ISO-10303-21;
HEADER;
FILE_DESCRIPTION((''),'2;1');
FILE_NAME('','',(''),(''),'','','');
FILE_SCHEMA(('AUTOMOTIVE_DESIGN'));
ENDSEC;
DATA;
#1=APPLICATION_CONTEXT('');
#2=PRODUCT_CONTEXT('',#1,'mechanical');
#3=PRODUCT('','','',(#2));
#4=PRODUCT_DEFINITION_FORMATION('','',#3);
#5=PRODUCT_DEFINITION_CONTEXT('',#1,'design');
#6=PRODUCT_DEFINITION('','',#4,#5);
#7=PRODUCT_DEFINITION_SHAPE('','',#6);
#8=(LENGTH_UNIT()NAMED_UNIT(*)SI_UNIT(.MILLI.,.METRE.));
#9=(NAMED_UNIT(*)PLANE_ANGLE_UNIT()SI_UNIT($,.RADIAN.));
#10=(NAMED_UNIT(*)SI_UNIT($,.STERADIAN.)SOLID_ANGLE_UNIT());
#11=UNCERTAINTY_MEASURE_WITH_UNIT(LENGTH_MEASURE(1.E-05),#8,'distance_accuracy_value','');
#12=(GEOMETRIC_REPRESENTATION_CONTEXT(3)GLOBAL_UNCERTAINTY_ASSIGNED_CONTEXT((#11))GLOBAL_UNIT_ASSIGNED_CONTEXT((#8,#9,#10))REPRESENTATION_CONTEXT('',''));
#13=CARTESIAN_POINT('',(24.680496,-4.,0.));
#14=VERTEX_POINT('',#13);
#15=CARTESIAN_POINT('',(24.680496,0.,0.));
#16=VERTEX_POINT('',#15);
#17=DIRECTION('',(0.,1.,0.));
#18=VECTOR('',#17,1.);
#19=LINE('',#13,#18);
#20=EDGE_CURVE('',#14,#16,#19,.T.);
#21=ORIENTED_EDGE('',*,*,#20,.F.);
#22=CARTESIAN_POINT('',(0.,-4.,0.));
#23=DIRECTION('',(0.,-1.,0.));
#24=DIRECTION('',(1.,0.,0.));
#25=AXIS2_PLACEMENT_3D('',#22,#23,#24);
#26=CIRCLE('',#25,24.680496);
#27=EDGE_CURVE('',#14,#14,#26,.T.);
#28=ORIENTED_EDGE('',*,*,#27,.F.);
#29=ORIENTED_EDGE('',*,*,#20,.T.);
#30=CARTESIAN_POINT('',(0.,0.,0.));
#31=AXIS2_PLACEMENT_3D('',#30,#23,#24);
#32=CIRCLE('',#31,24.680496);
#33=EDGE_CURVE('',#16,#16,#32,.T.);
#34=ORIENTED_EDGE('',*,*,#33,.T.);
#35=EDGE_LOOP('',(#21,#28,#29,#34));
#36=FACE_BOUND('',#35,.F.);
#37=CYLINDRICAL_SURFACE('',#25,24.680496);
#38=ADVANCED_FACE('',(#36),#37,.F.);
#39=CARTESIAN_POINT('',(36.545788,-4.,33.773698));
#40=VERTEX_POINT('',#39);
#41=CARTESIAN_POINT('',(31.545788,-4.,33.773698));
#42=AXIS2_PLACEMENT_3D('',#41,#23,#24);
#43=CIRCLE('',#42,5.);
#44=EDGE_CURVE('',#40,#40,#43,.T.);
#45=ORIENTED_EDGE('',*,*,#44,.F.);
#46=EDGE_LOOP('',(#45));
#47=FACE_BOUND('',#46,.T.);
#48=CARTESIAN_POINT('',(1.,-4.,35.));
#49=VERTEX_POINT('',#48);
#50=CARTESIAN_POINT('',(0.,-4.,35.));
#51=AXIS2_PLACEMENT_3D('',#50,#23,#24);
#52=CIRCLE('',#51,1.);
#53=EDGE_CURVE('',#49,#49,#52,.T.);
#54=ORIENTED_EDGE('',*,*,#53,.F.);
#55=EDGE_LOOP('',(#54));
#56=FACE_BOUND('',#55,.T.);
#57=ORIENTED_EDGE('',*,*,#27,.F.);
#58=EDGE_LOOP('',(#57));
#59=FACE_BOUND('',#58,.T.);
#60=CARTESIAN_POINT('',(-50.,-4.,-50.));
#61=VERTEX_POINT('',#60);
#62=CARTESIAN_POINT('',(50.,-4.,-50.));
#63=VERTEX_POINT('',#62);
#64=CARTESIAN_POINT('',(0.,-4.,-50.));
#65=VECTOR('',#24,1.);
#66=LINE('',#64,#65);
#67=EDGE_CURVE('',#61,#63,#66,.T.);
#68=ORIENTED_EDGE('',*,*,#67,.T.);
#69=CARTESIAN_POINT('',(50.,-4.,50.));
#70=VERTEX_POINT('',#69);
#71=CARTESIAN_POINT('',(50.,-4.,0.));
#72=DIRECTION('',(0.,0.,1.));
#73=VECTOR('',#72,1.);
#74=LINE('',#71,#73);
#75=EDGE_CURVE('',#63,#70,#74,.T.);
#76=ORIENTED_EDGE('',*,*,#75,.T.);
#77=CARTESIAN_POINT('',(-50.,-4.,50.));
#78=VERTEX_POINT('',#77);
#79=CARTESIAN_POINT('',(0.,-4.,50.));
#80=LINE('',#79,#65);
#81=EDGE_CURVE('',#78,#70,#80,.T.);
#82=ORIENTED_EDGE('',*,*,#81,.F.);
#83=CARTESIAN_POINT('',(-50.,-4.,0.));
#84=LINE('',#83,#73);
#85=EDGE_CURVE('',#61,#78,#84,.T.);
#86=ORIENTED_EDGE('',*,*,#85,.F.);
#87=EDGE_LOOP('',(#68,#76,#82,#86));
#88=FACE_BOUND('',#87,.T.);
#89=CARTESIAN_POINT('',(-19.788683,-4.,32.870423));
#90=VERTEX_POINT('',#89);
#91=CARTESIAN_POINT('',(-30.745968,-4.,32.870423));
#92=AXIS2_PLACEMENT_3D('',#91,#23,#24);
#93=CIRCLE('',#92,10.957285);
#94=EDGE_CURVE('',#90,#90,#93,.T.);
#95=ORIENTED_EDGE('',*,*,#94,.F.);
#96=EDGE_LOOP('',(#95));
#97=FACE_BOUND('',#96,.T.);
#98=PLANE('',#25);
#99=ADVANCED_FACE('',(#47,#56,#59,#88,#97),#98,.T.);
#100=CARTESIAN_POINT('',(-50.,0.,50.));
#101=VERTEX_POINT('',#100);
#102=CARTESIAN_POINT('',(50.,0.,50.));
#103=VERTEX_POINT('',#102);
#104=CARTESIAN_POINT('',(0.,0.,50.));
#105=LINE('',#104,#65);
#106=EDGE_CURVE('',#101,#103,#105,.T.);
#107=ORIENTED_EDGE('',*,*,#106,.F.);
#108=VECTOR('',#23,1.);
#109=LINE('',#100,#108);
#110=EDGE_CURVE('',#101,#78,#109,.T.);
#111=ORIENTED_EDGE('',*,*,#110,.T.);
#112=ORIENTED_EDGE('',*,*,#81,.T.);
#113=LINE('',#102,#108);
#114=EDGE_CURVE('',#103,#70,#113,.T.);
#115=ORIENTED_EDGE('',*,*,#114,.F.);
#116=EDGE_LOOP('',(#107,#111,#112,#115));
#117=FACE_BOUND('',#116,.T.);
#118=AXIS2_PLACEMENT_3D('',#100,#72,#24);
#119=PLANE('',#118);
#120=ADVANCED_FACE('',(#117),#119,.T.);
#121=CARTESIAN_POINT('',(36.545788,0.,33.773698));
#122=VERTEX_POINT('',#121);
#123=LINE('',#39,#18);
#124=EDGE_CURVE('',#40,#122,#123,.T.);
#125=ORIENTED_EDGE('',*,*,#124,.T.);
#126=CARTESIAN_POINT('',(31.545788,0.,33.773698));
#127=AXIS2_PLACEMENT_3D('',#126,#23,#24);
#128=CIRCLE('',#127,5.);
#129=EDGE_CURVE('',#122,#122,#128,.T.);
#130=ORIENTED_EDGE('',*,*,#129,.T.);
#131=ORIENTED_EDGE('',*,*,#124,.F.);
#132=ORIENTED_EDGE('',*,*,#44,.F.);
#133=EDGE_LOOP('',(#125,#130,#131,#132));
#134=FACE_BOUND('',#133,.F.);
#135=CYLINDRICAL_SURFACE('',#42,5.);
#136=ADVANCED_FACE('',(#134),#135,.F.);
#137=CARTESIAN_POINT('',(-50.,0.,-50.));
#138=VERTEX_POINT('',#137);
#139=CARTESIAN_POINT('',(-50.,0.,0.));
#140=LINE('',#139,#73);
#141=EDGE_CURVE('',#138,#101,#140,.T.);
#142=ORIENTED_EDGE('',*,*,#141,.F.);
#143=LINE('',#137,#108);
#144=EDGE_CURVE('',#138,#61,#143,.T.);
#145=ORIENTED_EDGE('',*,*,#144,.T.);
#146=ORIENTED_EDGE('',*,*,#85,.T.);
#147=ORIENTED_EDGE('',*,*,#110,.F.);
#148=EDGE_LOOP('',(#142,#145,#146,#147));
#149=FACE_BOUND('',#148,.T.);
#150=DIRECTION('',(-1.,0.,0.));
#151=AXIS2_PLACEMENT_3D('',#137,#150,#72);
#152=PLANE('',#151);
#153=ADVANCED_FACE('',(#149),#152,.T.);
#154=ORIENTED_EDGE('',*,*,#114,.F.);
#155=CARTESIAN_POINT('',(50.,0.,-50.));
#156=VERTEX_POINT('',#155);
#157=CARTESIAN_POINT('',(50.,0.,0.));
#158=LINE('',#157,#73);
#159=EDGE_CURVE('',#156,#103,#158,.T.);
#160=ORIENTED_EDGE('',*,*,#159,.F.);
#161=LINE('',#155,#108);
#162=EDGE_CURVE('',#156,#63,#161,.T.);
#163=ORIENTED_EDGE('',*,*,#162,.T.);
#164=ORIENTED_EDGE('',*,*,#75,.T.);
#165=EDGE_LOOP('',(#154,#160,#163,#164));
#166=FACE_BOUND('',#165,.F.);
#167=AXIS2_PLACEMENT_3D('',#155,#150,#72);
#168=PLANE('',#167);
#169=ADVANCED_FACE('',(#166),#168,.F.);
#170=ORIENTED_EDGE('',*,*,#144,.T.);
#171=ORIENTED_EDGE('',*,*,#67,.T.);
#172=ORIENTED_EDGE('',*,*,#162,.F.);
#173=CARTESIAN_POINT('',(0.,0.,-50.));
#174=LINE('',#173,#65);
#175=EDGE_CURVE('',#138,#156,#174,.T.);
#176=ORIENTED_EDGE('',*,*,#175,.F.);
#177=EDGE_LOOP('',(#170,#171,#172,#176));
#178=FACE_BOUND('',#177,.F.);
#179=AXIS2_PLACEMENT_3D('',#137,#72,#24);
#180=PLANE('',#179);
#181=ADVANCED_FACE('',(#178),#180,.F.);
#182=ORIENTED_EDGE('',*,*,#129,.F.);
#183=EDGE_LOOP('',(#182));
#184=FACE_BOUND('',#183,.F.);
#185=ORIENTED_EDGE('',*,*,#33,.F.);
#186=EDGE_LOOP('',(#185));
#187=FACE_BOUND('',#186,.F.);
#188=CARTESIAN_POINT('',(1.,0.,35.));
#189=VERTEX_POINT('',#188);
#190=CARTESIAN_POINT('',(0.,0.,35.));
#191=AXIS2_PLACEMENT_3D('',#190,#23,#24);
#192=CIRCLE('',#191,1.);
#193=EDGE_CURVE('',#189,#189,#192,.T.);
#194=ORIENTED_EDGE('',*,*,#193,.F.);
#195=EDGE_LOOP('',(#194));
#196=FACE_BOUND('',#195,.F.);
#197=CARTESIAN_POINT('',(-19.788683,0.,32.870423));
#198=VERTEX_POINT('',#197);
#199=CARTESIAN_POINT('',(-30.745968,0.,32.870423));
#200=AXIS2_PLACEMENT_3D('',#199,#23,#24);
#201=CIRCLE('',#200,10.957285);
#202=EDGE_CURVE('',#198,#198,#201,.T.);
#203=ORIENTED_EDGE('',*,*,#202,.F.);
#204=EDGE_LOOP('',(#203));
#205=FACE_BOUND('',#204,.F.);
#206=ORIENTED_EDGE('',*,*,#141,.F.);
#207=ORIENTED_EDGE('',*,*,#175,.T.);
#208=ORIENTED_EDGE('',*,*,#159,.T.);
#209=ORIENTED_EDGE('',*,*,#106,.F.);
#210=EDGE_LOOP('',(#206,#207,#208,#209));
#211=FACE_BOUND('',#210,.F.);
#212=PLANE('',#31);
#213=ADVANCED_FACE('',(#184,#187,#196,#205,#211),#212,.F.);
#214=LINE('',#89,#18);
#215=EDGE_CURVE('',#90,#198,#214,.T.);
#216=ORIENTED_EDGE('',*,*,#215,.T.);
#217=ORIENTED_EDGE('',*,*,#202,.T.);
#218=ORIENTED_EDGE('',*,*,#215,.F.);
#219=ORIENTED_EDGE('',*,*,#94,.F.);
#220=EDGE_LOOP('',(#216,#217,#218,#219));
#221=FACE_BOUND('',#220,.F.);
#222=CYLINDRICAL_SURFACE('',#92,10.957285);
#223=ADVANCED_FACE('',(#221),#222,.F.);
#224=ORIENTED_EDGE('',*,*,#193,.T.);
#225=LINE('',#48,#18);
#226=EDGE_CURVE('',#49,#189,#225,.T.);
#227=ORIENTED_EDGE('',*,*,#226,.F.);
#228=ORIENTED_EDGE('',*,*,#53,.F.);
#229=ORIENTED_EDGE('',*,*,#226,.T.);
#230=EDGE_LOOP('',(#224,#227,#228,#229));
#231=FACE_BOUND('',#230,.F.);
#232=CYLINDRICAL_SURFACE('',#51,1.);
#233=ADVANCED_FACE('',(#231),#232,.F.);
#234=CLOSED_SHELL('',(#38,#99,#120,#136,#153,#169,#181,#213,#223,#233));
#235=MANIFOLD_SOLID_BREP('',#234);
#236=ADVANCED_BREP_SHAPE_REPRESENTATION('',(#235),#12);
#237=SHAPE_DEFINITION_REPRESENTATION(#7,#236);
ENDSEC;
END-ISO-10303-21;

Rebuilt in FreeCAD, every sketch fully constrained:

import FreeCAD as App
import Part
import Sketcher

V = App.Vector
Q = App.Units.Quantity


def add_polygon(sketch, points):
    """Adds a closed chain of lines whose ends are joined by coincident constraints."""
    first, n = sketch.GeometryCount, len(points)
    for a, b in zip(points, points[1:] + points[:1]):
        sketch.addGeometry(Part.LineSegment(App.Vector(*a, 0), App.Vector(*b, 0)), False)
    for i in range(n):
        sketch.addConstraint(Sketcher.Constraint("Coincident", first + i, 2, first + (i + 1) % n, 1))

doc = App.newDocument("Part")
body = doc.addObject("PartDesign::Body", "Body")

# Sketch on XZ plane
sketch1 = body.newObject("Sketcher::SketchObject", "Sketch")
sketch1.AttachmentSupport = (doc.getObject("XZ_Plane"), [""])
sketch1.MapMode = "FlatFace"
add_polygon(sketch1, [(-50, 50), (-50, -50), (50, -50), (50, 50)])  # lines 0-3
sketch1.addConstraint(Sketcher.Constraint("Vertical", 0))
sketch1.addConstraint(Sketcher.Constraint("Horizontal", 1))
sketch1.addConstraint(Sketcher.Constraint("Vertical", 2))
sketch1.addConstraint(Sketcher.Constraint("Horizontal", 3))
sketch1.addConstraint(Sketcher.Constraint("Symmetric", 0, 2, 2, 2, -1, 1))
sketch1.addConstraint(Sketcher.Constraint("Equal", 3, 0))
sketch1.addConstraint(Sketcher.Constraint("DistanceX", 1, 1, 1, 2, Q("100 mm")))
pad1 = body.newObject("PartDesign::Pad", "Pad")
pad1.Profile = sketch1
pad1.Length = 4

# Sketch on XZ plane
sketch2 = body.newObject("Sketcher::SketchObject", "Sketch001")
sketch2.AttachmentSupport = (doc.getObject("XZ_Plane"), [""])
sketch2.MapMode = "FlatFace"
sketch2.AttachmentOffset = App.Placement(V(0, 0, 4), App.Rotation())
sketch2.addGeometry(Part.Circle(V(0, 0, 0), V(0, 0, 1), 25), False)
sketch2.addConstraint(Sketcher.Constraint("Coincident", 0, 3, -1, 1))
sketch2.addConstraint(Sketcher.Constraint("Diameter", 0, Q("49.360992 mm")))
pocket1 = body.newObject("PartDesign::Pocket", "Pocket")
pocket1.Profile = sketch2
pocket1.Length = 25

# Sketch on XZ plane
sketch3 = body.newObject("Sketcher::SketchObject", "Sketch002")
sketch3.AttachmentSupport = (doc.getObject("XZ_Plane"), [""])
sketch3.MapMode = "FlatFace"
sketch3.AttachmentOffset = App.Placement(V(0, 0, 4), App.Rotation())
sketch3.addGeometry(Part.Circle(V(32, 34, 0), V(0, 0, 1), 5), False)
sketch3.addConstraint(Sketcher.Constraint("Diameter", 0, Q("10 mm")))
sketch3.addConstraint(Sketcher.Constraint("DistanceY", -1, 1, 0, 3, Q("33.773698 mm")))
sketch3.addConstraint(Sketcher.Constraint("DistanceX", -1, 1, 0, 3, Q("31.545788 mm")))
pocket2 = body.newObject("PartDesign::Pocket", "Pocket001")
pocket2.Profile = sketch3
pocket2.Length = 25

# Sketch on XZ plane
sketch4 = body.newObject("Sketcher::SketchObject", "Sketch003")
sketch4.AttachmentSupport = (doc.getObject("XZ_Plane"), [""])
sketch4.MapMode = "FlatFace"
sketch4.AttachmentOffset = App.Placement(V(0, 0, 4), App.Rotation())
sketch4.addGeometry(Part.Circle(V(-31, 33, 0), V(0, 0, 1), 11), False)
sketch4.addConstraint(Sketcher.Constraint("Diameter", 0, Q("21.91457 mm")))
sketch4.addConstraint(Sketcher.Constraint("DistanceX", 0, 3, -1, 1, Q("30.745968 mm")))
sketch4.addConstraint(Sketcher.Constraint("DistanceY", -1, 1, 0, 3, Q("32.870423 mm")))
pocket3 = body.newObject("PartDesign::Pocket", "Pocket002")
pocket3.Profile = sketch4
pocket3.Length = 25

# Sketch on XZ plane
sketch5 = body.newObject("Sketcher::SketchObject", "Sketch004")
sketch5.AttachmentSupport = (doc.getObject("XZ_Plane"), [""])
sketch5.MapMode = "FlatFace"
sketch5.AttachmentOffset = App.Placement(V(0, 0, 4), App.Rotation())
sketch5.addGeometry(Part.Circle(V(0, 35, 0), V(0, 0, 1), 1), False)
sketch5.addConstraint(Sketcher.Constraint("PointOnObject", 0, 3, -2))
sketch5.addConstraint(Sketcher.Constraint("Diameter", 0, Q("2 mm")))
sketch5.addConstraint(Sketcher.Constraint("DistanceY", -1, 1, 0, 3, Q("35 mm")))
pocket4 = body.newObject("PartDesign::Pocket", "Pocket003")
pocket4.Profile = sketch5
pocket4.Type = "ThroughAll"

doc.recompute()
